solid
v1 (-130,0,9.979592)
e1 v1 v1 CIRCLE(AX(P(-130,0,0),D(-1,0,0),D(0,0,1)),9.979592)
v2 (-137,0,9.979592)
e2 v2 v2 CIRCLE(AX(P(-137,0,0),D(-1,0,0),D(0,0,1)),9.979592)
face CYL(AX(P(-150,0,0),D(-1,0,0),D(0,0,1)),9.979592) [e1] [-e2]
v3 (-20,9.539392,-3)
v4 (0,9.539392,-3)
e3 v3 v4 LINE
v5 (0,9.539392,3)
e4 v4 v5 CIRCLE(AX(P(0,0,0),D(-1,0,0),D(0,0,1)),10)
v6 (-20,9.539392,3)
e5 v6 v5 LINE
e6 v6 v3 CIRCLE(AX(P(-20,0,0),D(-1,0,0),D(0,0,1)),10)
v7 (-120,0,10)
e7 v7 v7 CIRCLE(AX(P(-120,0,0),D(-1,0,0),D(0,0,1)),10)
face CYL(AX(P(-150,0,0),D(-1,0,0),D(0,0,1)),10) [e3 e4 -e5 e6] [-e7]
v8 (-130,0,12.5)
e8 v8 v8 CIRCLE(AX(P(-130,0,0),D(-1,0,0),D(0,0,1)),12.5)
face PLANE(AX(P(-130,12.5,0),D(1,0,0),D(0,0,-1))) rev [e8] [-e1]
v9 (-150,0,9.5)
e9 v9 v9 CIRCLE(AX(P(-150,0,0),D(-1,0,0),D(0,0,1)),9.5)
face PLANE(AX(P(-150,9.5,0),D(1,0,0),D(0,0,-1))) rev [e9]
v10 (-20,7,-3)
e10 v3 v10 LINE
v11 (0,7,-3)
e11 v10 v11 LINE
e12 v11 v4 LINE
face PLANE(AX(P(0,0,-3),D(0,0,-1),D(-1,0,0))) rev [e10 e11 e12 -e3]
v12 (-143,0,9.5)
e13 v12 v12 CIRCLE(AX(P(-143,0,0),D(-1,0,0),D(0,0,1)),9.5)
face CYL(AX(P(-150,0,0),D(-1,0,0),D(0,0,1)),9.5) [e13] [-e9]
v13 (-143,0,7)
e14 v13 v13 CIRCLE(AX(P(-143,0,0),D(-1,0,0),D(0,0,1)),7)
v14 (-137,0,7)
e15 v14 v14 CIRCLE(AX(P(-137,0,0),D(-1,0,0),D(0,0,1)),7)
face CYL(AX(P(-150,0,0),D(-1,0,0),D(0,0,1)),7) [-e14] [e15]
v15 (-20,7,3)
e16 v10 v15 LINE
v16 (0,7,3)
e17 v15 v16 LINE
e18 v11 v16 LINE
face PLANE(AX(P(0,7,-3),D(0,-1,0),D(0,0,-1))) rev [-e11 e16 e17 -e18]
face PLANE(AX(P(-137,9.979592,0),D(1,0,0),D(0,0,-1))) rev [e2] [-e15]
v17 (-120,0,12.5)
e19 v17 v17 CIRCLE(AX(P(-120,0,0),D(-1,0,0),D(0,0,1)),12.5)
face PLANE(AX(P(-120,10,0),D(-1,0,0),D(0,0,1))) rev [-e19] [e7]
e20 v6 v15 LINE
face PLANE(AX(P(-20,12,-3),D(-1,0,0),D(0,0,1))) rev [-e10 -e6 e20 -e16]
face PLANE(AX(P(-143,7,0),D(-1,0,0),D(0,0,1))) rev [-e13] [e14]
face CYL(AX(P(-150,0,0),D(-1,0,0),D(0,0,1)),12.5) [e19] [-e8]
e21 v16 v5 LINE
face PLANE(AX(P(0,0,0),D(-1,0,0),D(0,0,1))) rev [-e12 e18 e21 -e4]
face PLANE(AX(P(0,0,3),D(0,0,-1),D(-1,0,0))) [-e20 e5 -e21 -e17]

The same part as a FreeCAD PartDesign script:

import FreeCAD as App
import Part
import Sketcher
from FreeCAD import Vector
Q = App.Units.Quantity


def add_polygon(sketch, points):
    """Adds a closed chain of lines whose ends are joined by coincident constraints."""
    first, n = sketch.GeometryCount, len(points)
    for a, b in zip(points, points[1:] + points[:1]):
        sketch.addGeometry(Part.LineSegment(App.Vector(*a, 0), App.Vector(*b, 0)), False)
    for i in range(n):
        sketch.addConstraint(Sketcher.Constraint("Coincident", first + i, 2, first + (i + 1) % n, 1))

doc = App.newDocument("Part")
params = doc.addObject("Spreadsheet::Sheet", "Params")
for row, (alias, value) in enumerate([
    ("sketch1_width", "120 mm"),
    ("sketch1_width2", "10 mm"),
    ("sketch1_width3", "7 mm"),
    ("sketch1_width4", "6 mm"),
    ("sketch1_height", "2.5 mm"),
    ("revolution_angle", "360 deg"),
    ("sketch2_width", "20 mm"),
    ("sketch2_height", "5 mm"),
    ("pocket1_length", "6 mm"),
], start=1):
    params.set(f"A{row}", alias)
    params.set(f"B{row}", "=" + value)
    params.setAlias(f"B{row}", alias)

body = doc.addObject("PartDesign::Body", "Body")

# Sketch on XY plane
sketch1 = doc.addObject("Sketcher::SketchObject", "Sketch")
body.addObject(sketch1)
sketch1.AttachmentSupport = (doc.XY_Plane, [""])
sketch1.MapMode = "FlatFace"
add_polygon(sketch1, [(0, 0), (0, 10), (-120, 10), (-120, 12.5), (-130, 12.5), (-130, 10), (-137, 10), (-137, 7), (-143, 7), (-143, 9.5), (-150, 9.5), (-150, 0)])  # lines 0-11
sketch1.addConstraint([
    Sketcher.Constraint("Vertical", 0),
    Sketcher.Constraint("Horizontal", 1),
    Sketcher.Constraint("Vertical", 2),
    Sketcher.Constraint("Horizontal", 3),
    Sketcher.Constraint("Vertical", 4),
    Sketcher.Constraint("Horizontal", 5),
    Sketcher.Constraint("Vertical", 6),
    Sketcher.Constraint("Horizontal", 7),
    Sketcher.Constraint("Vertical", 8),
    Sketcher.Constraint("Horizontal", 9),
    Sketcher.Constraint("Vertical", 10),
    Sketcher.Constraint("Horizontal", 11),
    Sketcher.Constraint("Coincident", 11, 2, -1, 1),
    Sketcher.Constraint("Equal", 5, 9),
    Sketcher.Constraint("Equal", 3, 0),
    Sketcher.Constraint("Equal", 2, 8),
    Sketcher.Constraint("DistanceX", 1, 2, 1, 1, Q("120 mm")),
    Sketcher.Constraint("DistanceX", 3, 2, 3, 1, Q("10 mm")),
    Sketcher.Constraint("DistanceX", 5, 2, 5, 1, Q("7 mm")),
    Sketcher.Constraint("DistanceX", 7, 2, 7, 1, Q("6 mm")),
    Sketcher.Constraint("DistanceY", 2, 1, 2, 2, Q("2.5 mm")),
    Sketcher.Constraint("DistanceY", 10, 2, 10, 1, Q("9.5 mm")),
    Sketcher.Constraint("DistanceY", 4, 2, 4, 1, Q("2.520408 mm")),
])
sketch1.setExpression("Constraints[28]", "Params.sketch1_width")
sketch1.setExpression("Constraints[29]", "Params.sketch1_width2")
sketch1.setExpression("Constraints[30]", "Params.sketch1_width3")
sketch1.setExpression("Constraints[31]", "Params.sketch1_width4")
sketch1.setExpression("Constraints[32]", "Params.sketch1_height")
revolution = doc.addObject("PartDesign::Revolution", "Revolution")
body.addObject(revolution)
revolution.Profile = sketch1
revolution.ReferenceAxis = (sketch1, ["H_Axis"])
revolution.setExpression("Angle", "Params.revolution_angle")

# Sketch on XY plane
sketch2 = doc.addObject("Sketcher::SketchObject", "Sketch001")
body.addObject(sketch2)
sketch2.AttachmentSupport = (doc.XY_Plane, [""])
sketch2.MapMode = "FlatFace"
add_polygon(sketch2, [(-20, 12), (-20, 7), (0, 7), (0, 12)])  # lines 0-3
sketch2.addConstraint([
    Sketcher.Constraint("Vertical", 0),
    Sketcher.Constraint("Horizontal", 1),
    Sketcher.Constraint("Vertical", 2),
    Sketcher.Constraint("Horizontal", 3),
    Sketcher.Constraint("PointOnObject", 1, 2, -2),
    Sketcher.Constraint("DistanceX", 1, 1, 1, 2, Q("20 mm")),
    Sketcher.Constraint("DistanceY", 0, 2, 0, 1, Q("5 mm")),
    Sketcher.Constraint("DistanceY", -1, 1, 0, 2, Q("7 mm")),
])
sketch2.setExpression("Constraints[9]", "Params.sketch2_width")
sketch2.setExpression("Constraints[10]", "Params.sketch2_height")
pocket1 = doc.addObject("PartDesign::Pocket", "Pocket")
body.addObject(pocket1)
pocket1.Profile = sketch2
pocket1.setExpression("Length", "Params.pocket1_length")
pocket1.Midplane = True

doc.recompute()
